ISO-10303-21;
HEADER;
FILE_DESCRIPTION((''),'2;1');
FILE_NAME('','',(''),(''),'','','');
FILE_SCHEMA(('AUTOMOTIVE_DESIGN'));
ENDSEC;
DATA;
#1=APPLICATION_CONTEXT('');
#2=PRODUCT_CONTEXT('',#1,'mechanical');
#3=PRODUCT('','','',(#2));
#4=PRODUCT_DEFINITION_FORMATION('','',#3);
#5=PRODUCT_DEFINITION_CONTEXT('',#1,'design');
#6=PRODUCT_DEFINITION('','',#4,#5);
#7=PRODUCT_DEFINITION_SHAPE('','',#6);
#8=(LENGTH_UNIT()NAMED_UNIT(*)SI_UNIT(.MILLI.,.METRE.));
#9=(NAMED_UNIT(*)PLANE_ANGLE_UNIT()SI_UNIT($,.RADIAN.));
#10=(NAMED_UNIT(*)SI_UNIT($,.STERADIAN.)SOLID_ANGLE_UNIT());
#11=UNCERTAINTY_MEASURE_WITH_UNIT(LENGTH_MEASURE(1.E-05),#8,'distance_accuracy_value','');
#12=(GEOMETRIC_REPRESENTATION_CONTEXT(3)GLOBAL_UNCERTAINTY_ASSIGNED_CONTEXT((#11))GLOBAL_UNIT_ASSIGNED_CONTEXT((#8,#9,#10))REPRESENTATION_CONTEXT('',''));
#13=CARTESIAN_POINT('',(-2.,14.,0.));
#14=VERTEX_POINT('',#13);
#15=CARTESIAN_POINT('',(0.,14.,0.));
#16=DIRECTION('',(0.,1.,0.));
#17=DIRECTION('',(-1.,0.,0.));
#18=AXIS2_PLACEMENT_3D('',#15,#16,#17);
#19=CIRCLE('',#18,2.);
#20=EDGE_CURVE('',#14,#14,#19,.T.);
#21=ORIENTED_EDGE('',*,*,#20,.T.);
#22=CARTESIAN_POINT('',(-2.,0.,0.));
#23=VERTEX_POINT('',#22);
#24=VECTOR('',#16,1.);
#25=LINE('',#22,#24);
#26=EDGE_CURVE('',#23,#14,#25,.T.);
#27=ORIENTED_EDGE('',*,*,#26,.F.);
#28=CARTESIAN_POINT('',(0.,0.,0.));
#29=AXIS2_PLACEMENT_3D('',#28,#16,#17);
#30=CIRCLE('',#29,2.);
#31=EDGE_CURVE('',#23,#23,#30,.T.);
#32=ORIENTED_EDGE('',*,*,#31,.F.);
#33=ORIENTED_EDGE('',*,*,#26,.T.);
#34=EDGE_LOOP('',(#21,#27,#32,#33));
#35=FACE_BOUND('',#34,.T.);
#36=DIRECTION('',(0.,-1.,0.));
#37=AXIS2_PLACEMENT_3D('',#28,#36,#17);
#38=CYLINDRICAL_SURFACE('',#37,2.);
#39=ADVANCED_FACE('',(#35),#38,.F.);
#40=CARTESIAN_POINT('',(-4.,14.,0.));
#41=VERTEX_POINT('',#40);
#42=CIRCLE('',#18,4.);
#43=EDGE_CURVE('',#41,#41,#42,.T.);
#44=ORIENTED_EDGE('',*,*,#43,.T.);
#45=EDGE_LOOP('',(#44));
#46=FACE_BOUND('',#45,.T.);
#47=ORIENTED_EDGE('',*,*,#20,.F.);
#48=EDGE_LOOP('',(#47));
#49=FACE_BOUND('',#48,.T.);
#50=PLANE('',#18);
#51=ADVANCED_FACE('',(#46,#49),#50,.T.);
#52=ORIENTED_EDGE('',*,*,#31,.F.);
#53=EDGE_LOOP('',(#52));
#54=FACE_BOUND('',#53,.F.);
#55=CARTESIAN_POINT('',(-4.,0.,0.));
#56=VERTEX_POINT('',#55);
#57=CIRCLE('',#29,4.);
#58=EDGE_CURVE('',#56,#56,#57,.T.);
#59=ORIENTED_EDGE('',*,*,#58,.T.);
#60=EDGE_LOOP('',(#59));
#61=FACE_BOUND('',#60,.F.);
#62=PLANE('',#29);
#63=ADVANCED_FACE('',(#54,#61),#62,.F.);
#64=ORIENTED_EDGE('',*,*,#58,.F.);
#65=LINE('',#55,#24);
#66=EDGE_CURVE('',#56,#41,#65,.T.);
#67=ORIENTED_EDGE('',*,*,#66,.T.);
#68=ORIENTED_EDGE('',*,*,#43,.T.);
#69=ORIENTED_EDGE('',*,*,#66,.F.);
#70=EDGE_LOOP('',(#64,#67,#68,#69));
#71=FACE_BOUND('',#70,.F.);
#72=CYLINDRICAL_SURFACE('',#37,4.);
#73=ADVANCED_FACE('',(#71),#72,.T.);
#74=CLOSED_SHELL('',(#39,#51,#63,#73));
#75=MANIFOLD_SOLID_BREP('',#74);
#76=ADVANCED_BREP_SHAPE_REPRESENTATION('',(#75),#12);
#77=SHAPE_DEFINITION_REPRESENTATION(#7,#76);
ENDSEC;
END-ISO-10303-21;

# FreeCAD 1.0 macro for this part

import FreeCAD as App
import Part
import Sketcher

doc = App.newDocument("Part")
body = doc.addObject("PartDesign::Body", "Body")

# Sketch on XZ plane
sketch1 = body.newObject("Sketcher::SketchObject", "Sketch")
sketch1.AttachmentSupport = (doc.getObject("XZ_Plane"), [""])
sketch1.MapMode = "FlatFace"
sketch1.addGeometry(Part.Circle(App.Vector(0, 0, 0), App.Vector(0, 0, 1), 4), False)
sketch1.addGeometry(Part.Circle(App.Vector(0, 0, 0), App.Vector(0, 0, 1), 2), False)
sketch1.addConstraint(Sketcher.Constraint("Coincident", 0, 3, -1, 1))
sketch1.addConstraint(Sketcher.Constraint("Coincident", 1, 3, -1, 1))
sketch1.addConstraint(Sketcher.Constraint("Diameter", 0, 8.0))
sketch1.addConstraint(Sketcher.Constraint("Diameter", 1, 4.0))
pad1 = body.newObject("PartDesign::Pad", "Pad")
pad1.Profile = sketch1
pad1.Length = 14
pad1.Reversed = True

doc.recompute()
